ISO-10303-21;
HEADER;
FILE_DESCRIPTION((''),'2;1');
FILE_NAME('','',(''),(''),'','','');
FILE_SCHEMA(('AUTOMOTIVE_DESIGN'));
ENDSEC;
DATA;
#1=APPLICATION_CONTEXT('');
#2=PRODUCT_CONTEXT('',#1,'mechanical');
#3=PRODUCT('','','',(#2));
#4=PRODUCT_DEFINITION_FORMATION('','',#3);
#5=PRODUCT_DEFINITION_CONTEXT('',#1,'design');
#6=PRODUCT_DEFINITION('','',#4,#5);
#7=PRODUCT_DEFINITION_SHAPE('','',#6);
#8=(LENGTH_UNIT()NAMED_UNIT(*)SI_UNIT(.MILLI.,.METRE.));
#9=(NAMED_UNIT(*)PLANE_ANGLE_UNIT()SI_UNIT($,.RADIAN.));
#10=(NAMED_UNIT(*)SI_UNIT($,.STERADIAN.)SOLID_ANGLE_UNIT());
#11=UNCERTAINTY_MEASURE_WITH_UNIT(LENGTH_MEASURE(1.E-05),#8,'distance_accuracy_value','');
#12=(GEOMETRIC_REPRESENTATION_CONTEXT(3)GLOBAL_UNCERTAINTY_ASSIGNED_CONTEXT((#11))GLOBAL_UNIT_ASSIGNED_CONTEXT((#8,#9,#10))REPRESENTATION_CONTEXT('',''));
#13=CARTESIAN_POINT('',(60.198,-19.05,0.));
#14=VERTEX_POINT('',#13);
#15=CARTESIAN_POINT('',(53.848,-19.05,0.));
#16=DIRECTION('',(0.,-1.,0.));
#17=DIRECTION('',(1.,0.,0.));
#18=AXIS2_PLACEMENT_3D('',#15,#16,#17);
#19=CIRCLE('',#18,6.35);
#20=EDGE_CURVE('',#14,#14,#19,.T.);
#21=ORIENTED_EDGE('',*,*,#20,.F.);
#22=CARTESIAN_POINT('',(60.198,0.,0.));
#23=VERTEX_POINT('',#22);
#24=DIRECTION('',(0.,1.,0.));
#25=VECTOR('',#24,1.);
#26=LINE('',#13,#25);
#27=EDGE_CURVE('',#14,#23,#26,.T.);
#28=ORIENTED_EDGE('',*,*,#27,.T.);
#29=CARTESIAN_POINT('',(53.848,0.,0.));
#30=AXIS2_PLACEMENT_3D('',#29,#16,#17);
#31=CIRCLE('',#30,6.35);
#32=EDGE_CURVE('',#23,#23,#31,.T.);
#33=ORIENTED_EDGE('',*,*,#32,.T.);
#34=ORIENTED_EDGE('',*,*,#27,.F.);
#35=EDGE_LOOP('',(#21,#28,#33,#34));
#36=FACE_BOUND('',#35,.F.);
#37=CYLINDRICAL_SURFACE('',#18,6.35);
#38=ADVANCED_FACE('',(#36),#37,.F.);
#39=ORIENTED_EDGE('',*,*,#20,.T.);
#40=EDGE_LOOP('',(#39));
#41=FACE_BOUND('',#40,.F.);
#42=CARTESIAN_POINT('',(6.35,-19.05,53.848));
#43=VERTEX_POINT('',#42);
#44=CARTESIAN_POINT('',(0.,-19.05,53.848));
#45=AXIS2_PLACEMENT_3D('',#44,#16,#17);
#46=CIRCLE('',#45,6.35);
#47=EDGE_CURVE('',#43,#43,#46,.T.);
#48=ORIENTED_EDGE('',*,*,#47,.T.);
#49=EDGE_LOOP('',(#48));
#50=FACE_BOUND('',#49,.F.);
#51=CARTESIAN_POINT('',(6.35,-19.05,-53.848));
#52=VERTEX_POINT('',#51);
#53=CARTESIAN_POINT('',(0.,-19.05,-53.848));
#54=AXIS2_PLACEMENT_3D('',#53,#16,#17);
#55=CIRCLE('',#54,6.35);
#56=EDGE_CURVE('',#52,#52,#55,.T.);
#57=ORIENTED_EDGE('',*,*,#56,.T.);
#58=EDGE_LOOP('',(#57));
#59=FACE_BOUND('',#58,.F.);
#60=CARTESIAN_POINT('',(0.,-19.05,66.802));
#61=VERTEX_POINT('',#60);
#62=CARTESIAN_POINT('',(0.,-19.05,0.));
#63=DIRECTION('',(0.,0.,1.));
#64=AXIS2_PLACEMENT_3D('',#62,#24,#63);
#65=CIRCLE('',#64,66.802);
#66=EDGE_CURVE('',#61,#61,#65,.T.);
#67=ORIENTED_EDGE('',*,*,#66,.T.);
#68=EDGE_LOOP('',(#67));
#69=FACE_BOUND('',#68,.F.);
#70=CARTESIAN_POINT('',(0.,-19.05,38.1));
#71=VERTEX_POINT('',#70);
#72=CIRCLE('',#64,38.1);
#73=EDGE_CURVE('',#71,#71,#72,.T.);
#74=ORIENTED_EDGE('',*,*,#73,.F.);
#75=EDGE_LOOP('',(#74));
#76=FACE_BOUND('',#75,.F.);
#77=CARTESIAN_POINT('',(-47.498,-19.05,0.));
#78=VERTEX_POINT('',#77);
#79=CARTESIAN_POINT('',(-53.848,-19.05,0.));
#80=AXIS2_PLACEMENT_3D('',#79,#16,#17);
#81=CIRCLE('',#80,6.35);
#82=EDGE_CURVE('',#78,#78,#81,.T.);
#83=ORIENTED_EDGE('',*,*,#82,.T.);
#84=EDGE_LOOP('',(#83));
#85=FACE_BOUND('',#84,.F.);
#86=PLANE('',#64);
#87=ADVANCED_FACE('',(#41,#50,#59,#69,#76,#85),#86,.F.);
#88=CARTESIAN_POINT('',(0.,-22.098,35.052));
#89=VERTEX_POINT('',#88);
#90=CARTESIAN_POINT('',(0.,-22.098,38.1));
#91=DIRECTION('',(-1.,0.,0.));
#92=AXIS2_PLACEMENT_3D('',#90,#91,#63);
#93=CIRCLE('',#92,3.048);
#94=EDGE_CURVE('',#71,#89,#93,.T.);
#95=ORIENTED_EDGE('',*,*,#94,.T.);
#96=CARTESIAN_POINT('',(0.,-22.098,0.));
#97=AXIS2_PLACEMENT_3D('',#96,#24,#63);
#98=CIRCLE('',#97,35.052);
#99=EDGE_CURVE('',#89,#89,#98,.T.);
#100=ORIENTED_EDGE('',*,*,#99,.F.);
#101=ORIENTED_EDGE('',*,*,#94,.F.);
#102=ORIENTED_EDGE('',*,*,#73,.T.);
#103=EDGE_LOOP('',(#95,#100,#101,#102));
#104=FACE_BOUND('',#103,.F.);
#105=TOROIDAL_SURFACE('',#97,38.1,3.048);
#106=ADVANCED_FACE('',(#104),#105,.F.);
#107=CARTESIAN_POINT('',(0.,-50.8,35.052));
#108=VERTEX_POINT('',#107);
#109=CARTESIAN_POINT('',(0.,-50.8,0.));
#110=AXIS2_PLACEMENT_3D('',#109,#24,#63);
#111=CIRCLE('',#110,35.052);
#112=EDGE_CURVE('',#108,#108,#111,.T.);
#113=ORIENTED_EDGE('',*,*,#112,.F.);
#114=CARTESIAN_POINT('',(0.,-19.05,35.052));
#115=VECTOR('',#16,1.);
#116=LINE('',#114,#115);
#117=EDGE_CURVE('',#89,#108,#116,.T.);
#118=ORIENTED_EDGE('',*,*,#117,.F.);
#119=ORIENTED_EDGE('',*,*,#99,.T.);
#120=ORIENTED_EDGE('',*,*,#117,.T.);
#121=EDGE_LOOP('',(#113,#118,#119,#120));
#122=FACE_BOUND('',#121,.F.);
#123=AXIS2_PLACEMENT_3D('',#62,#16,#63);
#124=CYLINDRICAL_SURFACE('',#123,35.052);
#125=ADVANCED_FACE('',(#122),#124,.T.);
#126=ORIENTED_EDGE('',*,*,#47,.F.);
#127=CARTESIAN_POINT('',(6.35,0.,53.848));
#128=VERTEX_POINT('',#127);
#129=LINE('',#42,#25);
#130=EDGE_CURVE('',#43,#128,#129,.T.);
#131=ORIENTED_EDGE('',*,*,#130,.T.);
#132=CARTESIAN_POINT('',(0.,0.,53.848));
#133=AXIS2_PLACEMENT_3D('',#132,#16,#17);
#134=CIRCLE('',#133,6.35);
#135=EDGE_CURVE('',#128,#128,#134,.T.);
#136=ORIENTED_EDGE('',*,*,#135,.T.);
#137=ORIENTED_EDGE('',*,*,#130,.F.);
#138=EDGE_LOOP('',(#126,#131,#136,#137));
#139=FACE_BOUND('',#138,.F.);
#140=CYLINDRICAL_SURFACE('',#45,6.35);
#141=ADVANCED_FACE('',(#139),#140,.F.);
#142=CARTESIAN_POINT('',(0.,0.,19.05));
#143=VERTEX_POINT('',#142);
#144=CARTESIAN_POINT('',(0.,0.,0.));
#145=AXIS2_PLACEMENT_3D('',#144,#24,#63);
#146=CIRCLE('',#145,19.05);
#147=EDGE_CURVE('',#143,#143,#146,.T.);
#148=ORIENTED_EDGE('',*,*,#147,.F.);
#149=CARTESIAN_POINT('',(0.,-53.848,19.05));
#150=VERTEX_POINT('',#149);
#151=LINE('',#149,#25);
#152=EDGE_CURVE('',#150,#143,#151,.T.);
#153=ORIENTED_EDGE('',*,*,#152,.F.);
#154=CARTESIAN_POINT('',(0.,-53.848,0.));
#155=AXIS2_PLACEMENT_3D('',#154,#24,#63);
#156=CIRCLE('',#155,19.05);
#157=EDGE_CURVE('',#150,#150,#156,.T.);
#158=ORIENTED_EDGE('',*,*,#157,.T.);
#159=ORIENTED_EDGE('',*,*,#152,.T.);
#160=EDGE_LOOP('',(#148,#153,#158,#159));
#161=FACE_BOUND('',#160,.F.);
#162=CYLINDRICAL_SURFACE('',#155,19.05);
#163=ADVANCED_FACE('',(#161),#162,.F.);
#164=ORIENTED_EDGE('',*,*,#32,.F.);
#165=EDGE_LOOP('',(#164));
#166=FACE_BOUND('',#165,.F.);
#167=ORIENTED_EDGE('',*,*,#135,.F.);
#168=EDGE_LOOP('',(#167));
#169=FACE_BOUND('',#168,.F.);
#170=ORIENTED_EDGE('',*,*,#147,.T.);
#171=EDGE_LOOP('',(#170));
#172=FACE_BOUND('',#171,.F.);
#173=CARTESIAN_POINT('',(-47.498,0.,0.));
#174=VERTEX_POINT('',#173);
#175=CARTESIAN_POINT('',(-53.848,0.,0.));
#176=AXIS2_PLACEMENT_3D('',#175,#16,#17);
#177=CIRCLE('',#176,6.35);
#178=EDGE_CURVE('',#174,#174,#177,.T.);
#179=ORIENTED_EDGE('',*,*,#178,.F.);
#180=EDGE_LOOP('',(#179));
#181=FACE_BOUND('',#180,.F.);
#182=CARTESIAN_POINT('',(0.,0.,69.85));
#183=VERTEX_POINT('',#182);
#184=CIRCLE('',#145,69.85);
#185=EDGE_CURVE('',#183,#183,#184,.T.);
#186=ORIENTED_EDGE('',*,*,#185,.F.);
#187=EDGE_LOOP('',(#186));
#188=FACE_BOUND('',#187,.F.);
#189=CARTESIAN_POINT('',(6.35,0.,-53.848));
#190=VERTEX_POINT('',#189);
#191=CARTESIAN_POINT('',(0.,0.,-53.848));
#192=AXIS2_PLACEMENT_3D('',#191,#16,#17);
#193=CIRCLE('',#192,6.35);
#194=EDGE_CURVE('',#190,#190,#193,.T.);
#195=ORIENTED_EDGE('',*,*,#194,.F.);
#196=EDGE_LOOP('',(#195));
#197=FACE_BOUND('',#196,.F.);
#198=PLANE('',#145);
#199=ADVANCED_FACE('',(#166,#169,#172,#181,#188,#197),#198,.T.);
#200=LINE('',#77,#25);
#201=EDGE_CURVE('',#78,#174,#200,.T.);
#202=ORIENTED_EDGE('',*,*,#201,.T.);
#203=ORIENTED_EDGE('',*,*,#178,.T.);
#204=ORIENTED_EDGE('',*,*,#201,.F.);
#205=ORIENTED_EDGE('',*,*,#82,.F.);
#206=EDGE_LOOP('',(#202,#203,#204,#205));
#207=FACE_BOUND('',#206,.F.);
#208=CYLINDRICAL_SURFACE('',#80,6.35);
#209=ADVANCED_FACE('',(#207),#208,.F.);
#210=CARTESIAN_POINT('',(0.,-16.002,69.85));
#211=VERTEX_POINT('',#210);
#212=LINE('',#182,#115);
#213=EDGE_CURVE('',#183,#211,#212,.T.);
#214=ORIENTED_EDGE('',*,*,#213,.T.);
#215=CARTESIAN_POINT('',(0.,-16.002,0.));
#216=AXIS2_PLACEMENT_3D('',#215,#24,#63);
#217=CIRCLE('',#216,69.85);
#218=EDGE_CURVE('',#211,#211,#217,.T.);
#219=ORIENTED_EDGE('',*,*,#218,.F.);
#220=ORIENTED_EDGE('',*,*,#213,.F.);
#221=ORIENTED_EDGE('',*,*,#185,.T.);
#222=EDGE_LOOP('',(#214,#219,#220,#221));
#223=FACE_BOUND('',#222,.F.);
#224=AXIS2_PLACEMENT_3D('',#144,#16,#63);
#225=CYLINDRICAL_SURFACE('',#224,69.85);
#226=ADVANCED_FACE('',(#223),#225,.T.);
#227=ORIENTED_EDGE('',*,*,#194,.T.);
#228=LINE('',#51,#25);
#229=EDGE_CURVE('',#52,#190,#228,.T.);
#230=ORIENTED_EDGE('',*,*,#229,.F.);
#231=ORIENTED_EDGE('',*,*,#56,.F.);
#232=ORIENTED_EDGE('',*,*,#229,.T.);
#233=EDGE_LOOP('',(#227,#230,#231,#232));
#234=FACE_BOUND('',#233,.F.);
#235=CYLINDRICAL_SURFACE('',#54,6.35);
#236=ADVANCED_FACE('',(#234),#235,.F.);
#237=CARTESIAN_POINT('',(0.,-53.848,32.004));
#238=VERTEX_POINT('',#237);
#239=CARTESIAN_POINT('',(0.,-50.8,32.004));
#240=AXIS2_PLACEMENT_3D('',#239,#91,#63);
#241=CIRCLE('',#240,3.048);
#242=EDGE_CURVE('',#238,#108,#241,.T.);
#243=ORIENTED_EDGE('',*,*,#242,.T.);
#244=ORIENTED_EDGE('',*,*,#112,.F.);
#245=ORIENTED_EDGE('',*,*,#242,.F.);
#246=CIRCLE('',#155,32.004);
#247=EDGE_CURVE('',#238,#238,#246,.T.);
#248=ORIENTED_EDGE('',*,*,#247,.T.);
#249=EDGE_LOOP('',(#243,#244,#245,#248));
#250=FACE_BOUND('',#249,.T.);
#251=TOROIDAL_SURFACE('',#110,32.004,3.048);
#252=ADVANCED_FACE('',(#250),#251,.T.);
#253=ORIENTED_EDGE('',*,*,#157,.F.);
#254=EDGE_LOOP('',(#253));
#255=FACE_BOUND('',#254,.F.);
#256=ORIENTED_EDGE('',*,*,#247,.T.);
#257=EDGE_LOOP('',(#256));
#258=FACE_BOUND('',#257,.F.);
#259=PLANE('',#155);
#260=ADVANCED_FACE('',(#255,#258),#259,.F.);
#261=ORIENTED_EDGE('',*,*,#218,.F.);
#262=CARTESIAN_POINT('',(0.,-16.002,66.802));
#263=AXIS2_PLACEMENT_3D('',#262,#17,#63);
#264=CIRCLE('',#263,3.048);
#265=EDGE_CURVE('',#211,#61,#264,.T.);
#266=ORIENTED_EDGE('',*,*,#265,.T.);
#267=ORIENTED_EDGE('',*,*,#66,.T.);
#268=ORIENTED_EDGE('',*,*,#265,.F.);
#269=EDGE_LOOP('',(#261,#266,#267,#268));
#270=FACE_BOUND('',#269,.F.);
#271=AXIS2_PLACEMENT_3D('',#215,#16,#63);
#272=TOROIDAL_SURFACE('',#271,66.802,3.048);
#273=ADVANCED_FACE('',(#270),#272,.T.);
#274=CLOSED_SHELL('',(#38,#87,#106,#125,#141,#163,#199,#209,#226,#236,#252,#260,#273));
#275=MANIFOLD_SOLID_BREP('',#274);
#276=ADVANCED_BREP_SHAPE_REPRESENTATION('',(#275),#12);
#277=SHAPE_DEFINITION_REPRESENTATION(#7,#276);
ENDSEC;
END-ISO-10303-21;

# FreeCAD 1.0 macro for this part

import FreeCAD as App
import Part
import Sketcher
Q = App.Units.Quantity


def edges_at(feature, points):
    """Names of the edges that pass closest to the given points."""
    edges = feature.Shape.Edges
    near = lambda p: min(range(len(edges)), key=lambda i: edges[i].distToShape(Part.Vertex(*p))[0])
    return sorted({f"Edge{near(p) + 1}" for p in points})

doc = App.newDocument("Part")
body = doc.addObject("PartDesign::Body", "Body")

# Sketch on YZ plane
sketch1 = doc.addObject("Sketcher::SketchObject", "Sketch")
body.addObject(sketch1)
sketch1.AttachmentSupport = (doc.YZ_Plane, [""])
sketch1.MapMode = "FlatFace"
sketch1.addGeometry(Part.LineSegment(App.Vector(-54, 35, 0), App.Vector(-54, 19, 0)), False)
sketch1.addGeometry(Part.LineSegment(App.Vector(-54, 19, 0), App.Vector(0, 19, 0)), False)
sketch1.addGeometry(Part.LineSegment(App.Vector(0, 19, 0), App.Vector(0, 70, 0)), False)
sketch1.addGeometry(Part.LineSegment(App.Vector(0, 70, 0), App.Vector(-19, 70, 0)), False)
sketch1.addGeometry(Part.LineSegment(App.Vector(-19, 70, 0), App.Vector(-19, 35, 0)), False)
sketch1.addGeometry(Part.LineSegment(App.Vector(-19, 35, 0), App.Vector(-54, 35, 0)), False)
sketch1.addConstraint(Sketcher.Constraint("Coincident", 0, 2, 1, 1))
sketch1.addConstraint(Sketcher.Constraint("Coincident", 1, 2, 2, 1))
sketch1.addConstraint(Sketcher.Constraint("Coincident", 2, 2, 3, 1))
sketch1.addConstraint(Sketcher.Constraint("Coincident", 3, 2, 4, 1))
sketch1.addConstraint(Sketcher.Constraint("Coincident", 4, 2, 5, 1))
sketch1.addConstraint(Sketcher.Constraint("Coincident", 5, 2, 0, 1))
sketch1.addConstraint(Sketcher.Constraint("Vertical", 0))
sketch1.addConstraint(Sketcher.Constraint("Horizontal", 1))
sketch1.addConstraint(Sketcher.Constraint("Vertical", 2))
sketch1.addConstraint(Sketcher.Constraint("Horizontal", 3))
sketch1.addConstraint(Sketcher.Constraint("Vertical", 4))
sketch1.addConstraint(Sketcher.Constraint("Horizontal", 5))
sketch1.addConstraint(Sketcher.Constraint("PointOnObject", 1, 2, -2))
sketch1.addConstraint(Sketcher.Constraint("Equal", 5, 4))
sketch1.addConstraint(Sketcher.Constraint("DistanceY", 2, 1, 2, 2, Q("2 in")))
sketch1.addConstraint(Sketcher.Constraint("DistanceX", 1, 1, 1, 2, Q("2.12 in")))
sketch1.addConstraint(Sketcher.Constraint("DistanceX", 3, 2, 3, 1, Q("0.75 in")))
sketch1.addConstraint(Sketcher.Constraint("DistanceY", -1, 1, 0, 2, Q("0.75 in")))
revolution = doc.addObject("PartDesign::Revolution", "Revolution")
body.addObject(revolution)
revolution.Profile = sketch1
revolution.ReferenceAxis = (sketch1, ["H_Axis"])
revolution.Angle = 360
doc.recompute()

fillet = doc.addObject("PartDesign::Fillet", "Fillet")
body.addObject(fillet)
fillet.Base = (revolution, edges_at(revolution, [(0, -19.05, -69.85), (0, -53.848, -35.052), (0, -19.05, -35.052)]))
fillet.Radius = Q("0.12 in")

# Sketch on XZ plane
sketch2 = doc.addObject("Sketcher::SketchObject", "Sketch001")
body.addObject(sketch2)
sketch2.AttachmentSupport = (doc.XZ_Plane, [""])
sketch2.MapMode = "FlatFace"
sketch2.AttachmentOffset = App.Placement(App.Vector(0, 0, 0.75 * 25.4), App.Rotation())
sketch2.addGeometry(Part.Circle(App.Vector(0, 54, 0), App.Vector(0, 0, 1), 6), False)
sketch2.addGeometry(Part.Circle(App.Vector(54, 0, 0), App.Vector(0, 0, 1), 6), False)
sketch2.addGeometry(Part.Circle(App.Vector(0, -54, 0), App.Vector(0, 0, 1), 6), False)
sketch2.addGeometry(Part.Circle(App.Vector(-54, 0, 0), App.Vector(0, 0, 1), 6), False)
sketch2.addConstraint(Sketcher.Constraint("Equal", 0, 1))
sketch2.addConstraint(Sketcher.Constraint("Equal", 1, 2))
sketch2.addConstraint(Sketcher.Constraint("Equal", 2, 3))
sketch2.addConstraint(Sketcher.Constraint("Symmetric", 0, 3, 2, 3, -1, 1))
sketch2.addConstraint(Sketcher.Constraint("Symmetric", 1, 3, 3, 3, -1, 1))
sketch2.addConstraint(Sketcher.Constraint("PointOnObject", 0, 3, -2))
sketch2.addConstraint(Sketcher.Constraint("PointOnObject", 1, 3, -1))
sketch2.addConstraint(Sketcher.Constraint("Diameter", 0, Q("0.5 in")))
sketch2.addConstraint(Sketcher.Constraint("DistanceY", -1, 1, 0, 3, Q("2.12 in")))
sketch2.addConstraint(Sketcher.Constraint("DistanceX", -1, 1, 1, 3, Q("2.12 in")))
pocket1 = doc.addObject("PartDesign::Pocket", "Pocket")
body.addObject(pocket1)
pocket1.Profile = sketch2
pocket1.Type = "ThroughAll"

doc.recompute()
